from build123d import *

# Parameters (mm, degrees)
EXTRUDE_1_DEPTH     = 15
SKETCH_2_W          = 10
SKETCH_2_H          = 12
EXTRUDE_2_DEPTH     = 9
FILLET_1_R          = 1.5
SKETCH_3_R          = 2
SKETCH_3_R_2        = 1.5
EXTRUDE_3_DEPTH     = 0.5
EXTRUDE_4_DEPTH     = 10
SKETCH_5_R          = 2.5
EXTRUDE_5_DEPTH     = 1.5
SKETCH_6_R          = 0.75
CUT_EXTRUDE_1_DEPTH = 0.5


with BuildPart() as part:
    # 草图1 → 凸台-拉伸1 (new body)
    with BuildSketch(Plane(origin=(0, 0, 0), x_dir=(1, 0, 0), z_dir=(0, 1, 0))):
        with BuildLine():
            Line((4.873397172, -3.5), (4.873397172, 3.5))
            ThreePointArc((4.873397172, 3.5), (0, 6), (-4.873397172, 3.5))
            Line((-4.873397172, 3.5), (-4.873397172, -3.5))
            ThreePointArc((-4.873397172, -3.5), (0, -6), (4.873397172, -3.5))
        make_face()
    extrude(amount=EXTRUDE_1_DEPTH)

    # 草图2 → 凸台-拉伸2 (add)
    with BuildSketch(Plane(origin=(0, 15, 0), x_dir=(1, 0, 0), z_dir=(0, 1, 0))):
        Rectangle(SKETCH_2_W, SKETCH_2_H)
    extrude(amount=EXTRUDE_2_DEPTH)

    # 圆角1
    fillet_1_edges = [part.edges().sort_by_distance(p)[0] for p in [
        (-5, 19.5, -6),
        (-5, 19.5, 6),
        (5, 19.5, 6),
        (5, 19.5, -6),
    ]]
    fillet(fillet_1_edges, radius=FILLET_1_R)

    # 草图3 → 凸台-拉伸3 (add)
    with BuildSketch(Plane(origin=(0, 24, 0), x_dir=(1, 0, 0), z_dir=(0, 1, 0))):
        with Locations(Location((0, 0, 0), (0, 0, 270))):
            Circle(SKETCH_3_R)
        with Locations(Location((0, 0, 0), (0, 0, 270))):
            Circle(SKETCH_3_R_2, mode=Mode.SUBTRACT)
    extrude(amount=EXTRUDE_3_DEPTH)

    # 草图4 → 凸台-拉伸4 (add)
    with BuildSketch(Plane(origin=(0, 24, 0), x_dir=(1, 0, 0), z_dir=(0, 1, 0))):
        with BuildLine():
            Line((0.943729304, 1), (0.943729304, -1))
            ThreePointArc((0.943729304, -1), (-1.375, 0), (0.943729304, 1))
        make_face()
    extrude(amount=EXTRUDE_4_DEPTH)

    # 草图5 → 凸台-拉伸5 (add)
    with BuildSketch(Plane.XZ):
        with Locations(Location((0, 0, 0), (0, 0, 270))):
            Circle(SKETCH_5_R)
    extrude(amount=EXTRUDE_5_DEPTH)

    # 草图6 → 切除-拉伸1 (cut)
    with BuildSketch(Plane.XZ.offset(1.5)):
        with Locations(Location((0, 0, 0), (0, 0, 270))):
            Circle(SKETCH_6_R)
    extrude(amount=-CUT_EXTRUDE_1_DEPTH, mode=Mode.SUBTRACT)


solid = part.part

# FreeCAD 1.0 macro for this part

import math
import FreeCAD as App
import Part
import Sketcher
from FreeCAD import Vector


def edges_at(feature, points):
    """Names of the edges that pass closest to the given points."""
    edges = feature.Shape.Edges
    near = lambda p: min(range(len(edges)), key=lambda i: edges[i].distToShape(Part.Vertex(*p))[0])
    return sorted({f"Edge{near(p) + 1}" for p in points})

doc = App.newDocument("Part")
params = doc.addObject("Spreadsheet::Sheet", "Params")
for row, (alias, value) in enumerate([
    ("sketch1_radius", "6 mm"),
    ("sketch1_height", "7 mm"),
    ("pad1_length", "15 mm"),
    ("sketch2_width", "10 mm"),
    ("sketch2_height", "12 mm"),
    ("pad2_length", "9 mm"),
    ("fillet_radius", "1.5 mm"),
    ("sketch3_diameter", "4 mm"),
    ("sketch3_diameter2", "3 mm"),
    ("pad3_length", "0.5 mm"),
    ("sketch4_height", "2 mm"),
    ("pad4_length", "10 mm"),
    ("sketch5_diameter", "5 mm"),
    ("pad5_length", "1.5 mm"),
    ("sketch6_diameter", "1.5 mm"),
    ("pocket1_length", "0.5 mm"),
], start=1):
    params.set(f"A{row}", alias)
    params.set(f"B{row}", "=" + value)
    params.setAlias(f"B{row}", alias)

body = doc.addObject("PartDesign::Body", "Body")

# Sketch on XZ plane
sketch1 = doc.addObject("Sketcher::SketchObject", "Sketch")
body.addObject(sketch1)
sketch1.AttachmentSupport = (doc.XZ_Plane, [""])
sketch1.MapMode = "FlatFace"
sketch1.addGeometry([
    Part.LineSegment(Vector(4.873397, 3.5, 0), Vector(4.873397, -3.5, 0)),
    Part.ArcOfCircle(Part.Circle(Vector(0, 0, 0), Vector(0, 0, 1), 6), math.radians(-144.314665), math.radians(-35.685335)),
    Part.LineSegment(Vector(-4.873397, -3.5, 0), Vector(-4.873397, 3.5, 0)),
    Part.ArcOfCircle(Part.Circle(Vector(0, 0, 0), Vector(0, 0, 1), 6), math.radians(35.685335), math.radians(144.314665)),
], False)
sketch1.addConstraint([
    Sketcher.Constraint("Coincident", 0, 2, 1, 2),
    Sketcher.Constraint("Coincident", 1, 1, 2, 1),
    Sketcher.Constraint("Coincident", 2, 2, 3, 2),
    Sketcher.Constraint("Coincident", 3, 1, 0, 1),
    Sketcher.Constraint("Vertical", 0),
    Sketcher.Constraint("Vertical", 2),
    Sketcher.Constraint("Coincident", 1, 3, -1, 1),
    Sketcher.Constraint("Coincident", 3, 3, -1, 1),
    Sketcher.Constraint("Equal", 1, 3),
    Sketcher.Constraint("Horizontal", 0, 2, 1, 1),
    Sketcher.Constraint("Radius", 1, 6.0),
    Sketcher.Constraint("DistanceY", 0, 2, 0, 1, 7.0),
])
sketch1.setExpression("Constraints[10]", "Params.sketch1_radius")
sketch1.setExpression("Constraints[11]", "Params.sketch1_height")
pad1 = doc.addObject("PartDesign::Pad", "Pad")
body.addObject(pad1)
pad1.Profile = sketch1
pad1.setExpression("Length", "Params.pad1_length")
pad1.Reversed = True

# Sketch on XZ plane
sketch2 = doc.addObject("Sketcher::SketchObject", "Sketch001")
body.addObject(sketch2)
sketch2.AttachmentSupport = (doc.XZ_Plane, [""])
sketch2.MapMode = "FlatFace"
sketch2.AttachmentOffset = App.Placement(Vector(0, 0, -15), App.Rotation())
sketch2.addGeometry([
    Part.LineSegment(Vector(-5, -6, 0), Vector(-5, 6, 0)),
    Part.LineSegment(Vector(-5, 6, 0), Vector(5, 6, 0)),
    Part.LineSegment(Vector(5, 6, 0), Vector(5, -6, 0)),
    Part.LineSegment(Vector(5, -6, 0), Vector(-5, -6, 0)),
], False)
sketch2.addConstraint([
    Sketcher.Constraint("Coincident", 0, 2, 1, 1),
    Sketcher.Constraint("Coincident", 1, 2, 2, 1),
    Sketcher.Constraint("Coincident", 2, 2, 3, 1),
    Sketcher.Constraint("Coincident", 3, 2, 0, 1),
    Sketcher.Constraint("Vertical", 0),
    Sketcher.Constraint("Horizontal", 1),
    Sketcher.Constraint("Vertical", 2),
    Sketcher.Constraint("Horizontal", 3),
    Sketcher.Constraint("Symmetric", 0, 2, 2, 2, -1, 1),
    Sketcher.Constraint("DistanceX", 1, 1, 1, 2, 10.0),
    Sketcher.Constraint("DistanceY", 0, 1, 0, 2, 12.0),
])
sketch2.setExpression("Constraints[9]", "Params.sketch2_width")
sketch2.setExpression("Constraints[10]", "Params.sketch2_height")
pad2 = doc.addObject("PartDesign::Pad", "Pad001")
body.addObject(pad2)
pad2.Profile = sketch2
pad2.setExpression("Length", "Params.pad2_length")
pad2.Reversed = True
doc.recompute()

fillet = doc.addObject("PartDesign::Fillet", "Fillet")
body.addObject(fillet)
fillet.Base = (pad2, edges_at(pad2, [
    (-5, 19.5, -6),
    (-5, 19.5, 6),
    (5, 19.5, 6),
    (5, 19.5, -6),
]))
fillet.setExpression("Radius", "Params.fillet_radius")

# Sketch on XZ plane
sketch3 = doc.addObject("Sketcher::SketchObject", "Sketch002")
body.addObject(sketch3)
sketch3.AttachmentSupport = (doc.XZ_Plane, [""])
sketch3.MapMode = "FlatFace"
sketch3.AttachmentOffset = App.Placement(Vector(0, 0, -24), App.Rotation())
sketch3.addGeometry([
    Part.Circle(Vector(0, 0, 0), Vector(0, 0, 1), 2),
    Part.Circle(Vector(0, 0, 0), Vector(0, 0, 1), 1.5),
], False)
sketch3.addConstraint([
    Sketcher.Constraint("Coincident", 0, 3, -1, 1),
    Sketcher.Constraint("Coincident", 1, 3, -1, 1),
    Sketcher.Constraint("Diameter", 0, 4.0),
    Sketcher.Constraint("Diameter", 1, 3.0),
])
sketch3.setExpression("Constraints[2]", "Params.sketch3_diameter")
sketch3.setExpression("Constraints[3]", "Params.sketch3_diameter2")
pad3 = doc.addObject("PartDesign::Pad", "Pad002")
body.addObject(pad3)
pad3.Profile = sketch3
pad3.setExpression("Length", "Params.pad3_length")
pad3.Reversed = True

# Sketch on XZ plane
sketch4 = doc.addObject("Sketcher::SketchObject", "Sketch003")
body.addObject(sketch4)
sketch4.AttachmentSupport = (doc.XZ_Plane, [""])
sketch4.MapMode = "FlatFace"
sketch4.AttachmentOffset = App.Placement(Vector(0, 0, -24), App.Rotation())
sketch4.addGeometry([
    Part.LineSegment(Vector(0.943729, 1, 0), Vector(0.943729, -1, 0)),
    Part.ArcOfCircle(Part.Circle(Vector(0, 0, 0), Vector(0, 0, 1), 1.375), math.radians(46.658242), math.radians(313.341758)),
], False)
sketch4.addConstraint([
    Sketcher.Constraint("Coincident", 0, 1, 1, 1),
    Sketcher.Constraint("Coincident", 1, 2, 0, 2),
    Sketcher.Constraint("Vertical", 0),
    Sketcher.Constraint("Coincident", 1, 3, -1, 1),
    Sketcher.Constraint("DistanceY", 0, 2, 0, 1, 2.0),
    Sketcher.Constraint("Radius", 1, 1.375),
])
sketch4.setExpression("Constraints[4]", "Params.sketch4_height")
pad4 = doc.addObject("PartDesign::Pad", "Pad003")
body.addObject(pad4)
pad4.Profile = sketch4
pad4.setExpression("Length", "Params.pad4_length")
pad4.Reversed = True

# Sketch on XZ plane
sketch5 = doc.addObject("Sketcher::SketchObject", "Sketch004")
body.addObject(sketch5)
sketch5.AttachmentSupport = (doc.XZ_Plane, [""])
sketch5.MapMode = "FlatFace"
sketch5.addGeometry(Part.Circle(Vector(0, 0, 0), Vector(0, 0, 1), 2.5), False)
sketch5.addConstraint([
    Sketcher.Constraint("Coincident", 0, 3, -1, 1),
    Sketcher.Constraint("Diameter", 0, 5.0),
])
sketch5.setExpression("Constraints[1]", "Params.sketch5_diameter")
pad5 = doc.addObject("PartDesign::Pad", "Pad004")
body.addObject(pad5)
pad5.Profile = sketch5
pad5.setExpression("Length", "Params.pad5_length")

# Sketch on XZ plane
sketch6 = doc.addObject("Sketcher::SketchObject", "Sketch005")
body.addObject(sketch6)
sketch6.AttachmentSupport = (doc.XZ_Plane, [""])
sketch6.MapMode = "FlatFace"
sketch6.AttachmentOffset = App.Placement(Vector(0, 0, 1.5), App.Rotation())
sketch6.addGeometry(Part.Circle(Vector(0, 0, 0), Vector(0, 0, 1), 0.75), False)
sketch6.addConstraint([
    Sketcher.Constraint("Coincident", 0, 3, -1, 1),
    Sketcher.Constraint("Diameter", 0, 1.5),
])
sketch6.setExpression("Constraints[1]", "Params.sketch6_diameter")
pocket1 = doc.addObject("PartDesign::Pocket", "Pocket")
body.addObject(pocket1)
pocket1.Profile = sketch6
pocket1.setExpression("Length", "Params.pocket1_length")

doc.recompute()
